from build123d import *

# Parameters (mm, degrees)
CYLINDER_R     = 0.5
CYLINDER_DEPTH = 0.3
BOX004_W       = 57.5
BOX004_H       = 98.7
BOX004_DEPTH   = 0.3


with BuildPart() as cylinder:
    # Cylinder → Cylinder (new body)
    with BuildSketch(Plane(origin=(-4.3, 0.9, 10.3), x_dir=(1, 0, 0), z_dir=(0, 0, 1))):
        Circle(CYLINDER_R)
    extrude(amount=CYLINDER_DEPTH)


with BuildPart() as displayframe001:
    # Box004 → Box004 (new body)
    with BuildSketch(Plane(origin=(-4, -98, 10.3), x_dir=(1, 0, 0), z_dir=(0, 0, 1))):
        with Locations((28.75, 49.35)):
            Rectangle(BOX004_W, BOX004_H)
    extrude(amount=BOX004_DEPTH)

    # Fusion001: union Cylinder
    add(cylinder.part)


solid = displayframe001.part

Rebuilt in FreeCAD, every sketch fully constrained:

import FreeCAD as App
import Part
import Sketcher
from FreeCAD import Vector

doc = App.newDocument("Part")
body = doc.addObject("PartDesign::Body", "Body")

sketch1 = body.newObject("Sketcher::SketchObject", "Sketch")
sketch1.AttachmentSupport = (doc.getObject("XY_Plane"), [""])
sketch1.MapMode = "FlatFace"
sketch1.AttachmentOffset = App.Placement(Vector(0, 0, 10.3), App.Rotation())
sketch1.addGeometry(Part.Circle(Vector(-4.3, 0.9, 0), Vector(0, 0, 1), 0.5), False)
sketch1.addConstraint([
    Sketcher.Constraint("Diameter", 0, 1.0),
    Sketcher.Constraint("DistanceX", 0, 3, -1, 1, 4.3),
    Sketcher.Constraint("DistanceY", -1, 1, 0, 3, 0.9),
])
pad1 = body.newObject("PartDesign::Pad", "Pad")
pad1.Profile = sketch1
pad1.Length = 0.3
body2 = doc.addObject("PartDesign::Body", "Body001")

sketch2 = body2.newObject("Sketcher::SketchObject", "Sketch001")
sketch2.AttachmentSupport = (doc.getObject("XY_Plane001"), [""])
sketch2.MapMode = "FlatFace"
sketch2.AttachmentOffset = App.Placement(Vector(0, 0, 10.3), App.Rotation())
sketch2.addGeometry([
    Part.LineSegment(Vector(-4, 0.7, 0), Vector(-4, -98, 0)),
    Part.LineSegment(Vector(-4, -98, 0), Vector(53.5, -98, 0)),
    Part.LineSegment(Vector(53.5, -98, 0), Vector(53.5, 0.7, 0)),
    Part.LineSegment(Vector(53.5, 0.7, 0), Vector(-4, 0.7, 0)),
], False)
sketch2.addConstraint([
    Sketcher.Constraint("Coincident", 0, 2, 1, 1),
    Sketcher.Constraint("Coincident", 1, 2, 2, 1),
    Sketcher.Constraint("Coincident", 2, 2, 3, 1),
    Sketcher.Constraint("Coincident", 3, 2, 0, 1),
    Sketcher.Constraint("Vertical", 0),
    Sketcher.Constraint("Horizontal", 1),
    Sketcher.Constraint("Vertical", 2),
    Sketcher.Constraint("Horizontal", 3),
    Sketcher.Constraint("DistanceX", 1, 1, 1, 2, 57.5),
    Sketcher.Constraint("DistanceY", 0, 2, 0, 1, 98.7),
    Sketcher.Constraint("DistanceX", 0, 2, -1, 1, 4.0),
    Sketcher.Constraint("DistanceY", 0, 2, -1, 1, 98.0),
])
pad2 = body2.newObject("PartDesign::Pad", "Pad001")
pad2.Profile = sketch2
pad2.Length = 0.3
doc.recompute()

boolean = body2.newObject("PartDesign::Boolean", "Boolean")
boolean.Type = "Fuse"
boolean.addObjects([body])

doc.recompute()
